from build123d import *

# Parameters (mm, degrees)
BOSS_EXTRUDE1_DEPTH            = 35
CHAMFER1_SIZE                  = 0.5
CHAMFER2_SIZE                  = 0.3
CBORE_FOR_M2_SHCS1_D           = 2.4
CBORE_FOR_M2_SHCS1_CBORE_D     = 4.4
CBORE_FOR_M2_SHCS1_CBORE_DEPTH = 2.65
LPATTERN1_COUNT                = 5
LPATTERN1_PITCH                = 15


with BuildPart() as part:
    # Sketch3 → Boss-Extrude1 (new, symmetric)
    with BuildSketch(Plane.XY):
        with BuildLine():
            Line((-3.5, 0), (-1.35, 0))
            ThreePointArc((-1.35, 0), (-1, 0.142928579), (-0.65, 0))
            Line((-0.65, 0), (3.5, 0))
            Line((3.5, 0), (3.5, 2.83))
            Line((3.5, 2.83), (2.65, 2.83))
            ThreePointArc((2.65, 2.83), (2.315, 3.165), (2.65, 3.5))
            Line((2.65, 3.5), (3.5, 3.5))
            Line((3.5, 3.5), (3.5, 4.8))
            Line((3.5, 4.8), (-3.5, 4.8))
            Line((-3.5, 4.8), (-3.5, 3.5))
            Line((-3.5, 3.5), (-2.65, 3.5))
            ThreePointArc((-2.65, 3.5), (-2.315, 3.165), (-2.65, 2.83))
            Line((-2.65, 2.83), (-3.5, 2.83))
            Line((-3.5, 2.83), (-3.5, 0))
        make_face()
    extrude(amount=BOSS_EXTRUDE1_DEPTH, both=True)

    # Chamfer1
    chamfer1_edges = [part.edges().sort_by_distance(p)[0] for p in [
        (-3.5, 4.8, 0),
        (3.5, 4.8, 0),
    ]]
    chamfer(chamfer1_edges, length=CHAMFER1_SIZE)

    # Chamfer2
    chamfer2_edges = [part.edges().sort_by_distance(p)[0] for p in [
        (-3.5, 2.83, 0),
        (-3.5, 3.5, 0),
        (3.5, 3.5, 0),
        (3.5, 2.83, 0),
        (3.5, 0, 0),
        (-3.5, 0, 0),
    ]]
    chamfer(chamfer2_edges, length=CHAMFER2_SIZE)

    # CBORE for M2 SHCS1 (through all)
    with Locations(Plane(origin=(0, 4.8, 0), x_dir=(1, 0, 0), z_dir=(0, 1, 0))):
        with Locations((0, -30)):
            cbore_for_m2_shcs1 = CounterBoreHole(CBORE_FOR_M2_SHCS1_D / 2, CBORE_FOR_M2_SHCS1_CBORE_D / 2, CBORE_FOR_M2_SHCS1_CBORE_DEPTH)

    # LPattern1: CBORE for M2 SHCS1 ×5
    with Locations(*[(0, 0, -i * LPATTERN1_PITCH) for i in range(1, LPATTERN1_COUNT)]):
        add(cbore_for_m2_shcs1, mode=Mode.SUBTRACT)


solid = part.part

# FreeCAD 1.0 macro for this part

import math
import FreeCAD as App
import Part
import Sketcher
Q = App.Units.Quantity


def edges_at(feature, points):
    """Names of the edges that pass closest to the given points."""
    edges = feature.Shape.Edges
    near = lambda p: min(range(len(edges)), key=lambda i: edges[i].distToShape(Part.Vertex(*p))[0])
    return sorted({f"Edge{near(p) + 1}" for p in points})

doc = App.newDocument("Part")
body = doc.addObject("PartDesign::Body", "Body")

sketch1 = body.newObject("Sketcher::SketchObject", "Sketch")
sketch1.AttachmentSupport = (doc.getObject("XY_Plane"), [""])
sketch1.MapMode = "FlatFace"
sketch1.addGeometry(Part.LineSegment(App.Vector(-3.5, 0, 0), App.Vector(-1.35, 0, 0)), False)
sketch1.addGeometry(Part.ArcOfCircle(Part.Circle(App.Vector(-1, -0.36, 0), App.Vector(0, 0, 1), 0.5), math.radians(46), math.radians(134)), False)
sketch1.addGeometry(Part.LineSegment(App.Vector(-0.65, 0, 0), App.Vector(3.5, 0, 0)), False)
sketch1.addGeometry(Part.LineSegment(App.Vector(3.5, 0, 0), App.Vector(3.5, 2.83, 0)), False)
sketch1.addGeometry(Part.LineSegment(App.Vector(3.5, 2.83, 0), App.Vector(2.65, 2.83, 0)), False)
sketch1.addGeometry(Part.ArcOfCircle(Part.Circle(App.Vector(2.65, 3.17, 0), App.Vector(0, 0, 1), 0.34), math.radians(90), math.radians(270)), False)
sketch1.addGeometry(Part.LineSegment(App.Vector(2.65, 3.5, 0), App.Vector(3.5, 3.5, 0)), False)
sketch1.addGeometry(Part.LineSegment(App.Vector(3.5, 3.5, 0), App.Vector(3.5, 4.8, 0)), False)
sketch1.addGeometry(Part.LineSegment(App.Vector(3.5, 4.8, 0), App.Vector(-3.5, 4.8, 0)), False)
sketch1.addGeometry(Part.LineSegment(App.Vector(-3.5, 4.8, 0), App.Vector(-3.5, 3.5, 0)), False)
sketch1.addGeometry(Part.LineSegment(App.Vector(-3.5, 3.5, 0), App.Vector(-2.65, 3.5, 0)), False)
sketch1.addGeometry(Part.ArcOfCircle(Part.Circle(App.Vector(-2.65, 3.17, 0), App.Vector(0, 0, 1), 0.34), math.radians(-90), math.radians(90)), False)
sketch1.addGeometry(Part.LineSegment(App.Vector(-2.65, 2.83, 0), App.Vector(-3.5, 2.83, 0)), False)
sketch1.addGeometry(Part.LineSegment(App.Vector(-3.5, 2.83, 0), App.Vector(-3.5, 0, 0)), False)
sketch1.addConstraint(Sketcher.Constraint("Coincident", 0, 2, 1, 2))
sketch1.addConstraint(Sketcher.Constraint("Coincident", 1, 1, 2, 1))
sketch1.addConstraint(Sketcher.Constraint("Coincident", 2, 2, 3, 1))
sketch1.addConstraint(Sketcher.Constraint("Coincident", 3, 2, 4, 1))
sketch1.addConstraint(Sketcher.Constraint("Tangent", 4, 2, 5, 2))
sketch1.addConstraint(Sketcher.Constraint("Tangent", 5, 1, 6, 1))
sketch1.addConstraint(Sketcher.Constraint("Coincident", 6, 2, 7, 1))
sketch1.addConstraint(Sketcher.Constraint("Coincident", 7, 2, 8, 1))
sketch1.addConstraint(Sketcher.Constraint("Coincident", 8, 2, 9, 1))
sketch1.addConstraint(Sketcher.Constraint("Coincident", 9, 2, 10, 1))
sketch1.addConstraint(Sketcher.Constraint("Tangent", 10, 2, 11, 2))
sketch1.addConstraint(Sketcher.Constraint("Tangent", 11, 1, 12, 1))
sketch1.addConstraint(Sketcher.Constraint("Coincident", 12, 2, 13, 1))
sketch1.addConstraint(Sketcher.Constraint("Coincident", 13, 2, 0, 1))
sketch1.addConstraint(Sketcher.Constraint("Horizontal", 0))
sketch1.addConstraint(Sketcher.Constraint("Horizontal", 2))
sketch1.addConstraint(Sketcher.Constraint("Vertical", 3))
sketch1.addConstraint(Sketcher.Constraint("Horizontal", 4))
sketch1.addConstraint(Sketcher.Constraint("Horizontal", 6))
sketch1.addConstraint(Sketcher.Constraint("Vertical", 7))
sketch1.addConstraint(Sketcher.Constraint("Horizontal", 8))
sketch1.addConstraint(Sketcher.Constraint("Vertical", 9))
sketch1.addConstraint(Sketcher.Constraint("Horizontal", 10))
sketch1.addConstraint(Sketcher.Constraint("Horizontal", 12))
sketch1.addConstraint(Sketcher.Constraint("Vertical", 13))
sketch1.addConstraint(Sketcher.Constraint("Equal", 5, 11))
sketch1.addConstraint(Sketcher.Constraint("Symmetric", 2, 2, 13, 2, -1, 1))
sketch1.addConstraint(Sketcher.Constraint("Symmetric", 5, 3, 11, 3, -2))
sketch1.addConstraint(Sketcher.Constraint("PointOnObject", 0, 2, -1))
sketch1.addConstraint(Sketcher.Constraint("Vertical", 3, 2, 6, 2))
sketch1.addConstraint(Sketcher.Constraint("Vertical", 9, 2, 12, 2))
sketch1.addConstraint(Sketcher.Constraint("Radius", 1, Q("0.5 mm")))
sketch1.addConstraint(Sketcher.Constraint("DistanceX", 8, 2, 8, 1, Q("7 mm")))
sketch1.addConstraint(Sketcher.Constraint("DistanceY", 7, 1, 7, 2, Q("1.3 mm")))
sketch1.addConstraint(Sketcher.Constraint("DistanceX", 1, 3, -1, 1, Q("1 mm")))
sketch1.addConstraint(Sketcher.Constraint("Radius", 5, Q("0.335 mm")))
sketch1.addConstraint(Sketcher.Constraint("DistanceX", 0, 2, 5, 3, Q("4 mm")))
sketch1.addConstraint(Sketcher.Constraint("DistanceX", 0, 1, 0, 2, Q("2.15 mm")))
sketch1.addConstraint(Sketcher.Constraint("DistanceY", 3, 1, 3, 2, Q("2.83 mm")))
pad1 = body.newObject("PartDesign::Pad", "Pad")
pad1.Profile = sketch1
pad1.Length = 70
pad1.Midplane = True
doc.recompute()

chamfer = body.newObject("PartDesign::Chamfer", "Chamfer")
chamfer.Base = (pad1, edges_at(pad1, [(-3.5, 4.8, 0), (3.5, 4.8, 0)]))
chamfer.Size = 0.5
doc.recompute()

chamfer2 = body.newObject("PartDesign::Chamfer", "Chamfer001")
chamfer2.Base = (chamfer, edges_at(chamfer, [
    (-3.5, 2.83, 0),
    (-3.5, 3.5, 0),
    (3.5, 3.5, 0),
    (3.5, 2.83, 0),
    (3.5, 0, 0),
    (-3.5, 0, 0),
]))
chamfer2.Size = 0.3

sketch2 = body.newObject("Sketcher::SketchObject", "Sketch001")
sketch2.AttachmentSupport = (doc.getObject("XZ_Plane"), [""])
sketch2.MapMode = "FlatFace"
sketch2.AttachmentOffset = App.Placement(App.Vector(0, 0, -4.8), App.Rotation())
sketch2.addGeometry(Part.Circle(App.Vector(0, 30, 0), App.Vector(0, 0, 1), 1.2), False)
sketch2.addConstraint(Sketcher.Constraint("PointOnObject", 0, 3, -2))
sketch2.addConstraint(Sketcher.Constraint("Diameter", 0, Q("2.4 mm")))
sketch2.addConstraint(Sketcher.Constraint("DistanceY", -1, 1, 0, 3, Q("30 mm")))
doc.recompute()
hole = body.newObject("PartDesign::Hole", "Hole")
hole.Profile = sketch2
hole.ThreadType = "None"
hole.Diameter = 2.4
hole.DepthType = "ThroughAll"
hole.HoleCutType = "Counterbore"
hole.HoleCutDiameter = 4.4
hole.HoleCutDepth = 2.65
hole.Reversed = True
doc.recompute()

linearpattern = body.newObject("PartDesign::LinearPattern", "LinearPattern")
linearpattern.Originals = [hole]
linearpattern.Direction = (doc.getObject("Z_Axis"), [""])
linearpattern.Mode = "offset"
linearpattern.Offset = 15
linearpattern.Occurrences = 5
linearpattern.Reversed = True
body.Tip = linearpattern

doc.recompute()
